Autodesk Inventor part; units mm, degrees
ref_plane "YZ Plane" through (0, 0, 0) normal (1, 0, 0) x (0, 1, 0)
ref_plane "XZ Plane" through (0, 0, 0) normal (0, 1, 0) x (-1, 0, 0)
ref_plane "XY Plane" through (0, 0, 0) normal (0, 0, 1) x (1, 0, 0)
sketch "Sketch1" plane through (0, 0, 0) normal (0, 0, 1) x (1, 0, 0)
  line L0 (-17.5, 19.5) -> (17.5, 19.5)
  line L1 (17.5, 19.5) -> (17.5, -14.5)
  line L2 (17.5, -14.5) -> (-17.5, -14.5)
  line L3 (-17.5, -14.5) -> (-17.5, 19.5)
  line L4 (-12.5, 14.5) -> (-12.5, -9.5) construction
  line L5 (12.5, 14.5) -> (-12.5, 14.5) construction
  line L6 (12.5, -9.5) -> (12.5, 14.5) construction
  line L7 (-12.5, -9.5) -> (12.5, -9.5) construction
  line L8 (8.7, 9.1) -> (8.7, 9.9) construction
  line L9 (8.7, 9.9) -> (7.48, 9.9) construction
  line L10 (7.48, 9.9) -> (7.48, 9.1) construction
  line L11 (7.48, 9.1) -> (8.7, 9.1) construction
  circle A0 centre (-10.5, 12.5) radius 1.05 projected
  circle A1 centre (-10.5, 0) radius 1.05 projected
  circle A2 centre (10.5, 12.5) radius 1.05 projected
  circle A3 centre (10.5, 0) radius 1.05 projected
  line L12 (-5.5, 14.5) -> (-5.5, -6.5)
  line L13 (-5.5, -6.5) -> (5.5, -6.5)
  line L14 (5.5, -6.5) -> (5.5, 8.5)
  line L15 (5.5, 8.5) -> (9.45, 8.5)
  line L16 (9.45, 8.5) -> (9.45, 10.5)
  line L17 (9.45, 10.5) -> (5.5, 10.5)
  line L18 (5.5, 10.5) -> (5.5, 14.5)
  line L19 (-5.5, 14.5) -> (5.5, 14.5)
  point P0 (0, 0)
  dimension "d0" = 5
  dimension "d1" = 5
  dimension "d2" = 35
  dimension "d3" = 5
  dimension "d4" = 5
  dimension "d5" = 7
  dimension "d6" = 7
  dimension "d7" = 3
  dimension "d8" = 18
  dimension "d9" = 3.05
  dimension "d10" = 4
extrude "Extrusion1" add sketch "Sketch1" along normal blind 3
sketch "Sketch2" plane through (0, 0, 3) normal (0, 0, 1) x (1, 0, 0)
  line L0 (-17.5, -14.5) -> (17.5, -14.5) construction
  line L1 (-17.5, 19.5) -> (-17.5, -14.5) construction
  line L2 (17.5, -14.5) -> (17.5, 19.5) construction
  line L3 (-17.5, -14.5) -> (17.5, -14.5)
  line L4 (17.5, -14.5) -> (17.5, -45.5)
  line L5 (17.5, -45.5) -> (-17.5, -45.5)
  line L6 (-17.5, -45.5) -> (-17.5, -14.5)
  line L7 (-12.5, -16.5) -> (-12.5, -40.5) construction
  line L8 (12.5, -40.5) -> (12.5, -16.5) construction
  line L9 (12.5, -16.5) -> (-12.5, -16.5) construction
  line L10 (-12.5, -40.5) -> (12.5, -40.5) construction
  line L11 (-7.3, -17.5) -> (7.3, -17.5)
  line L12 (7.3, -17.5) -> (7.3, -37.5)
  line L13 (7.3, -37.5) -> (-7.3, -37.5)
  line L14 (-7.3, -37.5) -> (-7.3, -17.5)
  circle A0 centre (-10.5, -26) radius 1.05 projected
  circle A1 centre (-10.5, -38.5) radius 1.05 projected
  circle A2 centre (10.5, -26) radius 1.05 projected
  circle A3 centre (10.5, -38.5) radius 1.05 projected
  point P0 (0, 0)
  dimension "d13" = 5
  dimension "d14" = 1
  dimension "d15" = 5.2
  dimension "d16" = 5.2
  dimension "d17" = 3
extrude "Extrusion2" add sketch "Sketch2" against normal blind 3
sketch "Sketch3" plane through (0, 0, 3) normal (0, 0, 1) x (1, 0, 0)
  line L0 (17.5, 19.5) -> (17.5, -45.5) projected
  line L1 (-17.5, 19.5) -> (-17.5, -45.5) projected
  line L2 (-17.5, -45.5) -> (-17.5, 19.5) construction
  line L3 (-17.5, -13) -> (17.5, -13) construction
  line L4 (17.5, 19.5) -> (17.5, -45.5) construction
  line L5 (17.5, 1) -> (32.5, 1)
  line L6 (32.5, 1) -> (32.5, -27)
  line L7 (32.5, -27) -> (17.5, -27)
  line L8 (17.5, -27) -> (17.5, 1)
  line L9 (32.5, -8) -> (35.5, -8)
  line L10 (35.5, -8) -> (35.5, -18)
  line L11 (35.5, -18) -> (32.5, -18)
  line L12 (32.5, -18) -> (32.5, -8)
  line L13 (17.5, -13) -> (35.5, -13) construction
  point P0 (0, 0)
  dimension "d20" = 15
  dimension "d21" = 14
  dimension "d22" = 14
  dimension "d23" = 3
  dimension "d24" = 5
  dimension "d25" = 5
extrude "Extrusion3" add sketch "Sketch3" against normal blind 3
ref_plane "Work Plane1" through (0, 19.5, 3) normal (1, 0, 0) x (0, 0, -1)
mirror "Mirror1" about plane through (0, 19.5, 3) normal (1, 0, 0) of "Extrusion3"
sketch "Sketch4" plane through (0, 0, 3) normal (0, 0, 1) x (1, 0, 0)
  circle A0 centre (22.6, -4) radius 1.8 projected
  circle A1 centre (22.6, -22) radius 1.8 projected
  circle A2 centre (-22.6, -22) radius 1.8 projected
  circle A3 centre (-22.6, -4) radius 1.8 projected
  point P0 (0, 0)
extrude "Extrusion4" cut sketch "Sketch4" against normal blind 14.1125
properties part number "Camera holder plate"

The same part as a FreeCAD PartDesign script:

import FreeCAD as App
import Part
import Sketcher

V = App.Vector
Q = App.Units.Quantity


def add_polygon(sketch, points):
    """Adds a closed chain of lines whose ends are joined by coincident constraints."""
    first, n = sketch.GeometryCount, len(points)
    for a, b in zip(points, points[1:] + points[:1]):
        sketch.addGeometry(Part.LineSegment(App.Vector(*a, 0), App.Vector(*b, 0)), False)
    for i in range(n):
        sketch.addConstraint(Sketcher.Constraint("Coincident", first + i, 2, first + (i + 1) % n, 1))

doc = App.newDocument("Part")
body = doc.addObject("PartDesign::Body", "Body")

# Sketch on XY plane
sketch1 = body.newObject("Sketcher::SketchObject", "Sketch")
sketch1.AttachmentSupport = (doc.getObject("XY_Plane"), [""])
sketch1.MapMode = "FlatFace"
add_polygon(sketch1, [(17.5, 19.5), (-17.5, 19.5), (-17.5, -14.5), (17.5, -14.5)])  # lines 0-3
sketch1.addGeometry(Part.Circle(V(-10.5, 0, 0), V(0, 0, 1), 1.1), False)  # 4
sketch1.addGeometry(Part.Circle(V(10.5, 0, 0), V(0, 0, 1), 1.1), False)  # 5
sketch1.addGeometry(Part.Circle(V(-10.5, 12.5, 0), V(0, 0, 1), 1.1), False)  # 6
add_polygon(sketch1, [(-5.5, -6.5), (-5.5, 14.5), (5.5, 14.5), (5.5, 10.5), (9.4, 10.5), (9.4, 8.5), (5.5, 8.5), (5.5, -6.5)])  # lines 7-14
sketch1.addGeometry(Part.Circle(V(10.5, 12.5, 0), V(0, 0, 1), 1.1), False)  # 15
sketch1.addConstraint([
    Sketcher.Constraint("Horizontal", 0),
    Sketcher.Constraint("Vertical", 1),
    Sketcher.Constraint("Horizontal", 2),
    Sketcher.Constraint("Vertical", 3),
    Sketcher.Constraint("Vertical", 7),
    Sketcher.Constraint("Horizontal", 8),
    Sketcher.Constraint("Vertical", 9),
    Sketcher.Constraint("Horizontal", 10),
    Sketcher.Constraint("Vertical", 11),
    Sketcher.Constraint("Horizontal", 12),
    Sketcher.Constraint("Vertical", 13),
    Sketcher.Constraint("Horizontal", 14),
    Sketcher.Constraint("Equal", 4, 5),
    Sketcher.Constraint("Equal", 5, 6),
    Sketcher.Constraint("Equal", 6, 15),
    Sketcher.Constraint("Symmetric", 4, 3, 5, 3, -1, 1),
    Sketcher.Constraint("Symmetric", 6, 3, 15, 3, -2),
    Sketcher.Constraint("PointOnObject", 4, 3, -1),
    Sketcher.Constraint("Vertical", 4, 3, 6, 3),
    Sketcher.Constraint("Vertical", 9, 2, 12, 2),
    Sketcher.Constraint("DistanceX", 0, 2, 0, 1, Q("35 mm")),
    Sketcher.Constraint("DistanceY", 9, 2, 9, 1, Q("4 mm")),
    Sketcher.Constraint("DistanceX", 0, 2, 6, 3, Q("7 mm")),
    Sketcher.Constraint("DistanceY", 6, 3, 0, 2, Q("7 mm")),
    Sketcher.Constraint("DistanceX", 5, 3, 2, 2, Q("7 mm")),
    Sketcher.Constraint("DistanceX", 6, 3, 7, 2, Q("5 mm")),
    Sketcher.Constraint("DistanceY", 7, 2, 0, 2, Q("5 mm")),
    Sketcher.Constraint("DistanceX", 8, 2, 15, 3, Q("5 mm")),
    Sketcher.Constraint("DistanceY", 11, 2, 15, 3, Q("4 mm")),
    Sketcher.Constraint("Diameter", 4, Q("2.1 mm")),
    Sketcher.Constraint("DistanceY", 1, 2, 1, 1, Q("34 mm")),
    Sketcher.Constraint("DistanceY", 7, 1, 7, 2, Q("21 mm")),
    Sketcher.Constraint("DistanceX", 10, 1, 10, 2, Q("3.95 mm")),
    Sketcher.Constraint("DistanceY", -1, 1, 6, 3, Q("12.5 mm")),
])
pad1 = body.newObject("PartDesign::Pad", "Pad")
pad1.Profile = sketch1
pad1.Length = 3

# Sketch on XY plane
sketch2 = body.newObject("Sketcher::SketchObject", "Sketch001")
sketch2.AttachmentSupport = (doc.getObject("XY_Plane"), [""])
sketch2.MapMode = "FlatFace"
sketch2.AttachmentOffset = App.Placement(V(0, 0, 3), App.Rotation())
add_polygon(sketch2, [(17.5, -14.5), (-17.5, -14.5), (-17.5, -45.5), (17.5, -45.5)])  # lines 0-3
sketch2.addGeometry(Part.Circle(V(-10.5, -38.5, 0), V(0, 0, 1), 1.1), False)  # 4
sketch2.addGeometry(Part.Circle(V(10.5, -38.5, 0), V(0, 0, 1), 1.1), False)  # 5
sketch2.addGeometry(Part.Circle(V(-10.5, -26, 0), V(0, 0, 1), 1.1), False)  # 6
add_polygon(sketch2, [(-7.3, -37.5), (-7.3, -17.5), (7.3, -17.5), (7.3, -37.5)])  # lines 7-10
sketch2.addGeometry(Part.Circle(V(10.5, -26, 0), V(0, 0, 1), 1.1), False)  # 11
sketch2.addConstraint([
    Sketcher.Constraint("Horizontal", 0),
    Sketcher.Constraint("Vertical", 1),
    Sketcher.Constraint("Horizontal", 2),
    Sketcher.Constraint("Vertical", 3),
    Sketcher.Constraint("Vertical", 7),
    Sketcher.Constraint("Horizontal", 8),
    Sketcher.Constraint("Vertical", 9),
    Sketcher.Constraint("Horizontal", 10),
    Sketcher.Constraint("Equal", 4, 5),
    Sketcher.Constraint("Equal", 5, 6),
    Sketcher.Constraint("Equal", 6, 11),
    Sketcher.Constraint("Symmetric", 4, 3, 5, 3, -2),
    Sketcher.Constraint("Symmetric", 6, 3, 11, 3, -2),
    Sketcher.Constraint("Vertical", 4, 3, 6, 3),
    Sketcher.Constraint("DistanceY", 7, 2, 0, 2, Q("3 mm")),
    Sketcher.Constraint("DistanceY", 5, 3, 9, 2, Q("1 mm")),
    Sketcher.Constraint("Diameter", 4, Q("2.1 mm")),
    Sketcher.Constraint("DistanceX", 0, 2, 0, 1, Q("35 mm")),
    Sketcher.Constraint("DistanceY", 1, 2, 1, 1, Q("31 mm")),
    Sketcher.Constraint("DistanceY", 7, 1, 7, 2, Q("20 mm")),
    Sketcher.Constraint("DistanceX", 8, 1, 8, 2, Q("14.6 mm")),
    Sketcher.Constraint("DistanceY", 6, 3, -1, 1, Q("26 mm")),
    Sketcher.Constraint("DistanceX", 4, 3, 5, 3, Q("21 mm")),
    Sketcher.Constraint("DistanceX", 0, 2, 6, 3, Q("7 mm")),
    Sketcher.Constraint("DistanceY", 4, 3, -1, 1, Q("38.5 mm")),
    Sketcher.Constraint("DistanceX", 7, 2, -1, 1, Q("7.3 mm")),
])
pad2 = body.newObject("PartDesign::Pad", "Pad001")
pad2.Profile = sketch2
pad2.Length = 3
pad2.Reversed = True

# Sketch on XY plane
sketch3 = body.newObject("Sketcher::SketchObject", "Sketch002")
sketch3.AttachmentSupport = (doc.getObject("XY_Plane"), [""])
sketch3.MapMode = "FlatFace"
sketch3.AttachmentOffset = App.Placement(V(0, 0, 3), App.Rotation())
add_polygon(sketch3, [(32.5, 1), (17.5, 1), (17.5, -27), (32.5, -27), (32.5, -18), (35.5, -18), (35.5, -8), (32.5, -8)])  # lines 0-7
sketch3.addConstraint([
    Sketcher.Constraint("Horizontal", 0),
    Sketcher.Constraint("Vertical", 1),
    Sketcher.Constraint("Horizontal", 2),
    Sketcher.Constraint("Vertical", 3),
    Sketcher.Constraint("Horizontal", 4),
    Sketcher.Constraint("Vertical", 5),
    Sketcher.Constraint("Horizontal", 6),
    Sketcher.Constraint("Vertical", 7),
    Sketcher.Constraint("Vertical", 3, 2, 6, 2),
    Sketcher.Constraint("Equal", 3, 7),
    Sketcher.Constraint("DistanceX", 0, 2, 0, 1, Q("15 mm")),
    Sketcher.Constraint("DistanceX", 4, 1, 4, 2, Q("3 mm")),
    Sketcher.Constraint("DistanceY", 1, 2, 1, 1, Q("28 mm")),
    Sketcher.Constraint("DistanceY", 3, 1, 3, 2, Q("9 mm")),
    Sketcher.Constraint("DistanceY", -1, 1, 0, 2, Q("1 mm")),
    Sketcher.Constraint("DistanceX", -1, 1, 0, 2, Q("17.5 mm")),
])
pad3 = body.newObject("PartDesign::Pad", "Pad002")
pad3.Profile = sketch3
pad3.Length = 3
pad3.Reversed = True
doc.recompute()

mirrored = body.newObject("PartDesign::Mirrored", "Mirrored")
mirrored.Originals = [pad3]
mirrored.MirrorPlane = (doc.getObject("YZ_Plane"), [""])
body.Tip = mirrored

# Sketch on XY plane
sketch4 = body.newObject("Sketcher::SketchObject", "Sketch003")
sketch4.AttachmentSupport = (doc.getObject("XY_Plane"), [""])
sketch4.MapMode = "FlatFace"
sketch4.AttachmentOffset = App.Placement(V(0, 0, 3), App.Rotation())
sketch4.addGeometry([
    Part.Circle(V(22.6, -4, 0), V(0, 0, 1), 1.8),
    Part.Circle(V(22.6, -22, 0), V(0, 0, 1), 1.8),
    Part.Circle(V(-22.6, -22, 0), V(0, 0, 1), 1.8),
    Part.Circle(V(-22.6, -4, 0), V(0, 0, 1), 1.8),
], False)
sketch4.addConstraint([
    Sketcher.Constraint("Equal", 0, 1),
    Sketcher.Constraint("Equal", 1, 2),
    Sketcher.Constraint("Equal", 2, 3),
    Sketcher.Constraint("Symmetric", 1, 3, 2, 3, -2),
    Sketcher.Constraint("Symmetric", 0, 3, 3, 3, -2),
    Sketcher.Constraint("Vertical", 0, 3, 1, 3),
    Sketcher.Constraint("Diameter", 0, Q("3.6 mm")),
    Sketcher.Constraint("DistanceY", 0, 3, -1, 1, Q("4 mm")),
    Sketcher.Constraint("DistanceY", 1, 3, -1, 1, Q("22 mm")),
    Sketcher.Constraint("DistanceX", -1, 1, 0, 3, Q("22.6 mm")),
])
pocket1 = body.newObject("PartDesign::Pocket", "Pocket")
pocket1.Profile = sketch4
pocket1.Length = 14.1125

doc.recompute()
